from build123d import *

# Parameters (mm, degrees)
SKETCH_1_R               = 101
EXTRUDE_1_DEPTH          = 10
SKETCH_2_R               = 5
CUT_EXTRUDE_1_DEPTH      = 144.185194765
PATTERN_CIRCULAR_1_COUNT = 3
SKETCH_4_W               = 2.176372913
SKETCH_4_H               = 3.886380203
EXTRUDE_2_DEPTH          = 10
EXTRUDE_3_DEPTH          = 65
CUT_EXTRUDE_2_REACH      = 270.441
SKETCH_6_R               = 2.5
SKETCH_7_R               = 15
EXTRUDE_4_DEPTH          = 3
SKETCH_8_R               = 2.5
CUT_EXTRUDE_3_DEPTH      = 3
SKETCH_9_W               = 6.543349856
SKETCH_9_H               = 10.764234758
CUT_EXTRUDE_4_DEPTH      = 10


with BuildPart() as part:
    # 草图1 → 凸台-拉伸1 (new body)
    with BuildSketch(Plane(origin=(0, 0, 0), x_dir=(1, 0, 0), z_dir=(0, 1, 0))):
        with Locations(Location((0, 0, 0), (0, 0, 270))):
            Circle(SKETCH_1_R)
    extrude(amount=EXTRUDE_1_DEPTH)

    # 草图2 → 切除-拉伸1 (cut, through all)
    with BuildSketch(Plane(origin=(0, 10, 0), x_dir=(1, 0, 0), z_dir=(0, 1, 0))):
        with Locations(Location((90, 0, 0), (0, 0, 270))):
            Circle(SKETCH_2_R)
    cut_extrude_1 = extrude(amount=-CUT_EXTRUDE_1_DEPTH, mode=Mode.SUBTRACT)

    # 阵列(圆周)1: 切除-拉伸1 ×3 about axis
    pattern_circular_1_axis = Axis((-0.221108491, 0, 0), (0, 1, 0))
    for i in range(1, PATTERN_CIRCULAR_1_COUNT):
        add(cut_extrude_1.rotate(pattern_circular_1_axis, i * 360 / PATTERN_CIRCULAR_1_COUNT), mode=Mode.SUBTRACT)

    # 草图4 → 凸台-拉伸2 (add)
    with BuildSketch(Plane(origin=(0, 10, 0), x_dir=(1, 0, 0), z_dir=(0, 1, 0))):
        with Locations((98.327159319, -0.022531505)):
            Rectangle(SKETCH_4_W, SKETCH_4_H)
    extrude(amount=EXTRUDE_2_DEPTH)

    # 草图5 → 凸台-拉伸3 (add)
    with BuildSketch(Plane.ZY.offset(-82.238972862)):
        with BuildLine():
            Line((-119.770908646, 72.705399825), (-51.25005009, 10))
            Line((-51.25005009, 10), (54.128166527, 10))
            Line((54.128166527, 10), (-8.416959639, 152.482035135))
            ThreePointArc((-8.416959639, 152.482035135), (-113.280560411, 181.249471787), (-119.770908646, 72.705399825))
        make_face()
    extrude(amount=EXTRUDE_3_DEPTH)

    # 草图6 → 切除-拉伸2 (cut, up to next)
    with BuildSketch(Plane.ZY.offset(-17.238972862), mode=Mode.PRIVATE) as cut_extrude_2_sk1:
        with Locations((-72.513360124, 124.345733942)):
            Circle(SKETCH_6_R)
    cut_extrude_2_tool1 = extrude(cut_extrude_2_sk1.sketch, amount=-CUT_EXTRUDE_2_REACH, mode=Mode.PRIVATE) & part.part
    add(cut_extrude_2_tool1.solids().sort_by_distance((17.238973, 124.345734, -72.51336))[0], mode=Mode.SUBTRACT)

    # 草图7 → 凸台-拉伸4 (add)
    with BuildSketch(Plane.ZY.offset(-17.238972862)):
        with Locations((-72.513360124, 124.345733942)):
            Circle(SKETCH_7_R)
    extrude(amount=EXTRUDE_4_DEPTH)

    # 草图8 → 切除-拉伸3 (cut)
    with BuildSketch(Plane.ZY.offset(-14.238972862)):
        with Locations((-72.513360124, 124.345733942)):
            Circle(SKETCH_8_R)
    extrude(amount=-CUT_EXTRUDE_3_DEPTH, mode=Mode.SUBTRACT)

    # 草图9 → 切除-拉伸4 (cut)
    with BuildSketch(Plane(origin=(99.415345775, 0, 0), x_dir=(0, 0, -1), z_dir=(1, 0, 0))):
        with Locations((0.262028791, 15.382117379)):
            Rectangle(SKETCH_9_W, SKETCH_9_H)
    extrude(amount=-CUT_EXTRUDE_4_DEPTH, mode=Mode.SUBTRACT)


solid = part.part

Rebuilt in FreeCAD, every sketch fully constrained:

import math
import FreeCAD as App
import Part
import Sketcher
from FreeCAD import Vector
Q = App.Units.Quantity

doc = App.newDocument("Part")
body = doc.addObject("PartDesign::Body", "Body")

# Sketch on XZ plane
sketch1 = body.newObject("Sketcher::SketchObject", "Sketch")
sketch1.AttachmentSupport = (doc.getObject("XZ_Plane"), [""])
sketch1.MapMode = "FlatFace"
sketch1.addGeometry(Part.Circle(Vector(0, 0, 0), Vector(0, 0, 1), 101), False)
sketch1.addConstraint([
    Sketcher.Constraint("Coincident", 0, 3, -1, 1),
    Sketcher.Constraint("Diameter", 0, Q("202 mm")),
])
pad1 = body.newObject("PartDesign::Pad", "Pad")
pad1.Profile = sketch1
pad1.Length = 10
pad1.Reversed = True

# Sketch on XZ plane
sketch2 = body.newObject("Sketcher::SketchObject", "Sketch001")
sketch2.AttachmentSupport = (doc.getObject("XZ_Plane"), [""])
sketch2.MapMode = "FlatFace"
sketch2.AttachmentOffset = App.Placement(Vector(0, 0, -10), App.Rotation())
sketch2.addGeometry(Part.Circle(Vector(90, 0, 0), Vector(0, 0, 1), 5), False)
sketch2.addConstraint([
    Sketcher.Constraint("PointOnObject", 0, 3, -1),
    Sketcher.Constraint("Diameter", 0, Q("10 mm")),
    Sketcher.Constraint("DistanceX", -1, 1, 0, 3, Q("90 mm")),
])
pocket1 = body.newObject("PartDesign::Pocket", "Pocket")
pocket1.Profile = sketch2
pocket1.Type = "ThroughAll"
pocket1.Reversed = True
doc.recompute()

datumline = body.newObject("PartDesign::Line", "DatumLine")
datumline.Placement = App.Placement(Vector(-0.221108, 0, 0), App.Rotation(Vector(0, 0, 1), Vector(0, 1, 0)))
polarpattern = body.newObject("PartDesign::PolarPattern", "PolarPattern")
polarpattern.Originals = [pocket1]
polarpattern.Axis = (datumline, [""])
polarpattern.Angle = 360
polarpattern.Occurrences = 3
body.Tip = polarpattern

# Sketch on XZ plane
sketch3 = body.newObject("Sketcher::SketchObject", "Sketch002")
sketch3.AttachmentSupport = (doc.getObject("XZ_Plane"), [""])
sketch3.MapMode = "FlatFace"
sketch3.AttachmentOffset = App.Placement(Vector(0, 0, -10), App.Rotation())
sketch3.addGeometry([
    Part.LineSegment(Vector(97.2, -1.9, 0), Vector(97.2, 2, 0)),
    Part.LineSegment(Vector(97.2, 2, 0), Vector(99.4, 2, 0)),
    Part.LineSegment(Vector(99.4, 2, 0), Vector(99.4, -1.9, 0)),
    Part.LineSegment(Vector(99.4, -1.9, 0), Vector(97.2, -1.9, 0)),
], False)
sketch3.addConstraint([
    Sketcher.Constraint("Coincident", 0, 2, 1, 1),
    Sketcher.Constraint("Coincident", 1, 2, 2, 1),
    Sketcher.Constraint("Coincident", 2, 2, 3, 1),
    Sketcher.Constraint("Coincident", 3, 2, 0, 1),
    Sketcher.Constraint("Vertical", 0),
    Sketcher.Constraint("Horizontal", 1),
    Sketcher.Constraint("Vertical", 2),
    Sketcher.Constraint("Horizontal", 3),
    Sketcher.Constraint("DistanceY", 0, 1, 0, 2, Q("3.88638 mm")),
    Sketcher.Constraint("DistanceX", 1, 1, 1, 2, Q("2.176373 mm")),
    Sketcher.Constraint("DistanceY", -1, 1, 0, 2, Q("1.965722 mm")),
    Sketcher.Constraint("DistanceX", -1, 1, 0, 2, Q("97.238973 mm")),
])
pad2 = body.newObject("PartDesign::Pad", "Pad001")
pad2.Profile = sketch3
pad2.Length = 10
pad2.Reversed = True

# Sketch on YZ plane
sketch4 = body.newObject("Sketcher::SketchObject", "Sketch003")
sketch4.AttachmentSupport = (doc.getObject("YZ_Plane"), [""])
sketch4.MapMode = "FlatFace"
sketch4.AttachmentOffset = App.Placement(Vector(0, 0, 82.238973), App.Rotation())
sketch4.addGeometry([
    Part.LineSegment(Vector(73, -120, 0), Vector(10, -51, 0)),
    Part.LineSegment(Vector(10, -51, 0), Vector(10, 54, 0)),
    Part.LineSegment(Vector(10, 54, 0), Vector(152, -8, 0)),
    Part.ArcOfCircle(Part.Circle(Vector(124, -73, 0), Vector(0, 0, 1), 70), math.radians(-138), math.radians(66)),
], False)
sketch4.addConstraint([
    Sketcher.Constraint("Coincident", 0, 2, 1, 1),
    Sketcher.Constraint("Coincident", 1, 2, 2, 1),
    Sketcher.Constraint("Tangent", 2, 2, 3, 2),
    Sketcher.Constraint("Tangent", 3, 1, 0, 1),
    Sketcher.Constraint("Vertical", 1),
    Sketcher.Constraint("Radius", 3, Q("70 mm")),
    Sketcher.Constraint("DistanceX", -1, 1, 0, 2, Q("10 mm")),
    Sketcher.Constraint("DistanceX", -1, 1, 3, 1, Q("72.7054 mm")),
    Sketcher.Constraint("DistanceX", 3, 3, 2, 2, Q("28.136301 mm")),
    Sketcher.Constraint("Distance", 0, Q("92.88205 mm")),
    Sketcher.Constraint("DistanceY", 3, 3, -1, 1, Q("72.51336 mm")),
])
pad3 = body.newObject("PartDesign::Pad", "Pad002")
pad3.Profile = sketch4
pad3.Length = 65
pad3.Reversed = True

# Sketch on YZ plane
sketch5 = body.newObject("Sketcher::SketchObject", "Sketch004")
sketch5.AttachmentSupport = (doc.getObject("YZ_Plane"), [""])
sketch5.MapMode = "FlatFace"
sketch5.AttachmentOffset = App.Placement(Vector(0, 0, 17.238973), App.Rotation())
sketch5.addGeometry(Part.Circle(Vector(124.3, -72.5, 0), Vector(0, 0, 1), 2.5), False)
sketch5.addConstraint([
    Sketcher.Constraint("Diameter", 0, Q("5 mm")),
    Sketcher.Constraint("DistanceY", 0, 3, -1, 1, Q("72.51336 mm")),
    Sketcher.Constraint("DistanceX", -1, 1, 0, 3, Q("124.345734 mm")),
])
pocket2 = body.newObject("PartDesign::Pocket", "Pocket001")
pocket2.Profile = sketch5
pocket2.Type = "UpToFirst"
pocket2.Reversed = True

# Sketch on YZ plane
sketch6 = body.newObject("Sketcher::SketchObject", "Sketch005")
sketch6.AttachmentSupport = (doc.getObject("YZ_Plane"), [""])
sketch6.MapMode = "FlatFace"
sketch6.AttachmentOffset = App.Placement(Vector(0, 0, 17.238973), App.Rotation())
sketch6.addGeometry(Part.Circle(Vector(124, -73, 0), Vector(0, 0, 1), 15), False)
sketch6.addConstraint([
    Sketcher.Constraint("Diameter", 0, Q("30 mm")),
    Sketcher.Constraint("DistanceY", 0, 3, -1, 1, Q("72.51336 mm")),
    Sketcher.Constraint("DistanceX", -1, 1, 0, 3, Q("124.345734 mm")),
])
pad4 = body.newObject("PartDesign::Pad", "Pad003")
pad4.Profile = sketch6
pad4.Length = 3
pad4.Reversed = True

# Sketch on YZ plane
sketch7 = body.newObject("Sketcher::SketchObject", "Sketch006")
sketch7.AttachmentSupport = (doc.getObject("YZ_Plane"), [""])
sketch7.MapMode = "FlatFace"
sketch7.AttachmentOffset = App.Placement(Vector(0, 0, 14.238973), App.Rotation())
sketch7.addGeometry(Part.Circle(Vector(124.3, -72.5, 0), Vector(0, 0, 1), 2.5), False)
sketch7.addConstraint([
    Sketcher.Constraint("Diameter", 0, Q("5 mm")),
    Sketcher.Constraint("DistanceY", 0, 3, -1, 1, Q("72.51336 mm")),
    Sketcher.Constraint("DistanceX", -1, 1, 0, 3, Q("124.345734 mm")),
])
pocket3 = body.newObject("PartDesign::Pocket", "Pocket002")
pocket3.Profile = sketch7
pocket3.Length = 3
pocket3.Reversed = True

# Sketch on YZ plane
sketch8 = body.newObject("Sketcher::SketchObject", "Sketch007")
sketch8.AttachmentSupport = (doc.getObject("YZ_Plane"), [""])
sketch8.MapMode = "FlatFace"
sketch8.AttachmentOffset = App.Placement(Vector(0, 0, 99.415346), App.Rotation())
sketch8.addGeometry([
    Part.LineSegment(Vector(21, 3, 0), Vector(10, 3, 0)),
    Part.LineSegment(Vector(10, 3, 0), Vector(10, -4, 0)),
    Part.LineSegment(Vector(10, -4, 0), Vector(21, -4, 0)),
    Part.LineSegment(Vector(21, -4, 0), Vector(21, 3, 0)),
], False)
sketch8.addConstraint([
    Sketcher.Constraint("Coincident", 0, 2, 1, 1),
    Sketcher.Constraint("Coincident", 1, 2, 2, 1),
    Sketcher.Constraint("Coincident", 2, 2, 3, 1),
    Sketcher.Constraint("Coincident", 3, 2, 0, 1),
    Sketcher.Constraint("Horizontal", 0),
    Sketcher.Constraint("Vertical", 1),
    Sketcher.Constraint("Horizontal", 2),
    Sketcher.Constraint("Vertical", 3),
    Sketcher.Constraint("DistanceX", -1, 1, 0, 2, Q("10 mm")),
    Sketcher.Constraint("DistanceY", 1, 2, 1, 1, Q("6.54335 mm")),
    Sketcher.Constraint("DistanceX", 0, 2, 0, 1, Q("10.764235 mm")),
    Sketcher.Constraint("DistanceY", -1, 1, 0, 2, Q("3.009646 mm")),
])
pocket4 = body.newObject("PartDesign::Pocket", "Pocket003")
pocket4.Profile = sketch8
pocket4.Length = 10

doc.recompute()
